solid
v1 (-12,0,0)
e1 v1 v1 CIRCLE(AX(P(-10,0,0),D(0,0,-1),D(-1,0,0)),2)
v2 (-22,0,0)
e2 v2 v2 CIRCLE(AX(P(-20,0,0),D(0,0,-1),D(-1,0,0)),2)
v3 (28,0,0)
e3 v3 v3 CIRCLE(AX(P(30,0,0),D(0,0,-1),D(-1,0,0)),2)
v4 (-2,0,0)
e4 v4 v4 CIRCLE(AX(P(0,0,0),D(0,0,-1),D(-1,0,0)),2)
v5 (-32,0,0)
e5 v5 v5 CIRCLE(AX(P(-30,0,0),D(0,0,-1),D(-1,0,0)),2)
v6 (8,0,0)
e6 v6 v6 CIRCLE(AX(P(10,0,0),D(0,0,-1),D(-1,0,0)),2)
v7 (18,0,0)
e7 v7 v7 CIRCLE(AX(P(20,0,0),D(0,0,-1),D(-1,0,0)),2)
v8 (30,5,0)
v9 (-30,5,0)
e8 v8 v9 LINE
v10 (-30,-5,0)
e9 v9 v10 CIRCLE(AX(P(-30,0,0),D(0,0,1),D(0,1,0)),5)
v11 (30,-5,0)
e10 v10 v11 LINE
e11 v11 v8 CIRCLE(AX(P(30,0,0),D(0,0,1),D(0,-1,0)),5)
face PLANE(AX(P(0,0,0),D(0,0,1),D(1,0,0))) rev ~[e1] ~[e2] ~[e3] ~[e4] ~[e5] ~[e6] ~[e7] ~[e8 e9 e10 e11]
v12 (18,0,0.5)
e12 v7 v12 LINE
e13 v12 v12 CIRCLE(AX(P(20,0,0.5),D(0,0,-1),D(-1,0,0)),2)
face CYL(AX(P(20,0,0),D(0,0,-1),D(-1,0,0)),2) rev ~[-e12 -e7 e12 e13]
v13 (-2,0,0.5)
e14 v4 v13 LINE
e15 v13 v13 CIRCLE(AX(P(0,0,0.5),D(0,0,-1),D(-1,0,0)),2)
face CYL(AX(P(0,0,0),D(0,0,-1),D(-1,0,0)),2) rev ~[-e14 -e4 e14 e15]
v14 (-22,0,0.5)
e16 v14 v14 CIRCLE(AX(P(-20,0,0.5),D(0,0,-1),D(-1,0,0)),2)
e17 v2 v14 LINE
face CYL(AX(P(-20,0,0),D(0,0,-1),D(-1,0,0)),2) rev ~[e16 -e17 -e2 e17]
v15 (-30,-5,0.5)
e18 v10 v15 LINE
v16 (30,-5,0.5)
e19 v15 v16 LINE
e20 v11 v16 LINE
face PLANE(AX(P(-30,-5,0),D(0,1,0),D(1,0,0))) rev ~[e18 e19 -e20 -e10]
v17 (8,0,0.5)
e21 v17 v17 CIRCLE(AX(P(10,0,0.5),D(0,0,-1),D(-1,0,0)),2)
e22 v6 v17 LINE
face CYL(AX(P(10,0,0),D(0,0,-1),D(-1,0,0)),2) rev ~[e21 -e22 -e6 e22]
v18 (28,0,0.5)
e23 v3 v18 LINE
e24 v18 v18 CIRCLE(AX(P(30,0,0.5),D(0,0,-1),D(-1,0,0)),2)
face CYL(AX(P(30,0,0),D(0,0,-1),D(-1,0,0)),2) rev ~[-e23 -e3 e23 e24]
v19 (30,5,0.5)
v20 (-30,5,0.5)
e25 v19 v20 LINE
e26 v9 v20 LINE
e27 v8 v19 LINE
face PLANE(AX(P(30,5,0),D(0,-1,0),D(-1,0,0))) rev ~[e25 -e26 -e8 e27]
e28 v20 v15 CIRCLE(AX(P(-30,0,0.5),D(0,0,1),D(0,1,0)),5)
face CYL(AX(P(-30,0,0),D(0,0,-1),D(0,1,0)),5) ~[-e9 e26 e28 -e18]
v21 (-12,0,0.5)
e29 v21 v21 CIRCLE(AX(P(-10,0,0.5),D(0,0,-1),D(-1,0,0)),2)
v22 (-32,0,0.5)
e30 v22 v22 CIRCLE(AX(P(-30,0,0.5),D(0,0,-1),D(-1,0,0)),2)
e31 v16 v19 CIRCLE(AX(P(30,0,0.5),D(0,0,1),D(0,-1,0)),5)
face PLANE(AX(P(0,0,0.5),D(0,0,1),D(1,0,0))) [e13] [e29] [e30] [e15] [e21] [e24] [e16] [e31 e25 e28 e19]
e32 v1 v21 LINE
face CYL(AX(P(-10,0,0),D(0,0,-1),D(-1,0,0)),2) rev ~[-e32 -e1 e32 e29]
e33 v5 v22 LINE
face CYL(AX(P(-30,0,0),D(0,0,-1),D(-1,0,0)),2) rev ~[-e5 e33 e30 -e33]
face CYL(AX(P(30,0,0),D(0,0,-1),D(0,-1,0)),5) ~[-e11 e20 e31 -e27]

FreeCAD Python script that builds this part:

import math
import FreeCAD as App
import Part
import Sketcher

doc = App.newDocument("Part")
body = doc.addObject("PartDesign::Body", "Body")

sketch1 = body.newObject("Sketcher::SketchObject", "Sketch")
sketch1.AttachmentSupport = (doc.getObject("XY_Plane"), [""])
sketch1.MapMode = "FlatFace"
sketch1.addGeometry(Part.ArcOfCircle(Part.Circle(App.Vector(-30, 0, 0), App.Vector(0, 0, 1), 5), math.radians(90), math.radians(270)), False)
sketch1.addGeometry(Part.LineSegment(App.Vector(-30, -5, 0), App.Vector(30, -5, 0)), False)
sketch1.addGeometry(Part.ArcOfCircle(Part.Circle(App.Vector(30, 0, 0), App.Vector(0, 0, 1), 5), math.radians(-90), math.radians(90)), False)
sketch1.addGeometry(Part.LineSegment(App.Vector(30, 5, 0), App.Vector(-30, 5, 0)), False)
sketch1.addConstraint(Sketcher.Constraint("Tangent", 0, 2, 1, 1))
sketch1.addConstraint(Sketcher.Constraint("Tangent", 1, 2, 2, 1))
sketch1.addConstraint(Sketcher.Constraint("Tangent", 2, 2, 3, 1))
sketch1.addConstraint(Sketcher.Constraint("Tangent", 3, 2, 0, 1))
sketch1.addConstraint(Sketcher.Constraint("Horizontal", 1))
sketch1.addConstraint(Sketcher.Constraint("Horizontal", 3))
sketch1.addConstraint(Sketcher.Constraint("Symmetric", 0, 3, 2, 3, -1, 1))
sketch1.addConstraint(Sketcher.Constraint("Radius", 0, 5.0))
sketch1.addConstraint(Sketcher.Constraint("DistanceX", 1, 1, 1, 2, 60.0))
pad1 = body.newObject("PartDesign::Pad", "Pad")
pad1.Profile = sketch1
pad1.Length = 0.5

sketch2 = body.newObject("Sketcher::SketchObject", "Sketch001")
sketch2.AttachmentSupport = (doc.getObject("XY_Plane"), [""])
sketch2.MapMode = "FlatFace"
sketch2.addGeometry(Part.Circle(App.Vector(-30, 0, 0), App.Vector(0, 0, 1), 2), False)
sketch2.addConstraint(Sketcher.Constraint("PointOnObject", 0, 3, -1))
sketch2.addConstraint(Sketcher.Constraint("Diameter", 0, 4.0))
sketch2.addConstraint(Sketcher.Constraint("DistanceX", 0, 3, -1, 1, 30.0))
pocket1 = body.newObject("PartDesign::Pocket", "Pocket")
pocket1.Profile = sketch2
pocket1.Type = "ThroughAll"
pocket1.Reversed = True
doc.recompute()

linearpattern = body.newObject("PartDesign::LinearPattern", "LinearPattern")
linearpattern.Originals = [pocket1]
linearpattern.Direction = (doc.getObject("X_Axis"), [""])
linearpattern.Mode = "offset"
linearpattern.Offset = 10
linearpattern.Occurrences = 7
body.Tip = linearpattern

doc.recompute()
